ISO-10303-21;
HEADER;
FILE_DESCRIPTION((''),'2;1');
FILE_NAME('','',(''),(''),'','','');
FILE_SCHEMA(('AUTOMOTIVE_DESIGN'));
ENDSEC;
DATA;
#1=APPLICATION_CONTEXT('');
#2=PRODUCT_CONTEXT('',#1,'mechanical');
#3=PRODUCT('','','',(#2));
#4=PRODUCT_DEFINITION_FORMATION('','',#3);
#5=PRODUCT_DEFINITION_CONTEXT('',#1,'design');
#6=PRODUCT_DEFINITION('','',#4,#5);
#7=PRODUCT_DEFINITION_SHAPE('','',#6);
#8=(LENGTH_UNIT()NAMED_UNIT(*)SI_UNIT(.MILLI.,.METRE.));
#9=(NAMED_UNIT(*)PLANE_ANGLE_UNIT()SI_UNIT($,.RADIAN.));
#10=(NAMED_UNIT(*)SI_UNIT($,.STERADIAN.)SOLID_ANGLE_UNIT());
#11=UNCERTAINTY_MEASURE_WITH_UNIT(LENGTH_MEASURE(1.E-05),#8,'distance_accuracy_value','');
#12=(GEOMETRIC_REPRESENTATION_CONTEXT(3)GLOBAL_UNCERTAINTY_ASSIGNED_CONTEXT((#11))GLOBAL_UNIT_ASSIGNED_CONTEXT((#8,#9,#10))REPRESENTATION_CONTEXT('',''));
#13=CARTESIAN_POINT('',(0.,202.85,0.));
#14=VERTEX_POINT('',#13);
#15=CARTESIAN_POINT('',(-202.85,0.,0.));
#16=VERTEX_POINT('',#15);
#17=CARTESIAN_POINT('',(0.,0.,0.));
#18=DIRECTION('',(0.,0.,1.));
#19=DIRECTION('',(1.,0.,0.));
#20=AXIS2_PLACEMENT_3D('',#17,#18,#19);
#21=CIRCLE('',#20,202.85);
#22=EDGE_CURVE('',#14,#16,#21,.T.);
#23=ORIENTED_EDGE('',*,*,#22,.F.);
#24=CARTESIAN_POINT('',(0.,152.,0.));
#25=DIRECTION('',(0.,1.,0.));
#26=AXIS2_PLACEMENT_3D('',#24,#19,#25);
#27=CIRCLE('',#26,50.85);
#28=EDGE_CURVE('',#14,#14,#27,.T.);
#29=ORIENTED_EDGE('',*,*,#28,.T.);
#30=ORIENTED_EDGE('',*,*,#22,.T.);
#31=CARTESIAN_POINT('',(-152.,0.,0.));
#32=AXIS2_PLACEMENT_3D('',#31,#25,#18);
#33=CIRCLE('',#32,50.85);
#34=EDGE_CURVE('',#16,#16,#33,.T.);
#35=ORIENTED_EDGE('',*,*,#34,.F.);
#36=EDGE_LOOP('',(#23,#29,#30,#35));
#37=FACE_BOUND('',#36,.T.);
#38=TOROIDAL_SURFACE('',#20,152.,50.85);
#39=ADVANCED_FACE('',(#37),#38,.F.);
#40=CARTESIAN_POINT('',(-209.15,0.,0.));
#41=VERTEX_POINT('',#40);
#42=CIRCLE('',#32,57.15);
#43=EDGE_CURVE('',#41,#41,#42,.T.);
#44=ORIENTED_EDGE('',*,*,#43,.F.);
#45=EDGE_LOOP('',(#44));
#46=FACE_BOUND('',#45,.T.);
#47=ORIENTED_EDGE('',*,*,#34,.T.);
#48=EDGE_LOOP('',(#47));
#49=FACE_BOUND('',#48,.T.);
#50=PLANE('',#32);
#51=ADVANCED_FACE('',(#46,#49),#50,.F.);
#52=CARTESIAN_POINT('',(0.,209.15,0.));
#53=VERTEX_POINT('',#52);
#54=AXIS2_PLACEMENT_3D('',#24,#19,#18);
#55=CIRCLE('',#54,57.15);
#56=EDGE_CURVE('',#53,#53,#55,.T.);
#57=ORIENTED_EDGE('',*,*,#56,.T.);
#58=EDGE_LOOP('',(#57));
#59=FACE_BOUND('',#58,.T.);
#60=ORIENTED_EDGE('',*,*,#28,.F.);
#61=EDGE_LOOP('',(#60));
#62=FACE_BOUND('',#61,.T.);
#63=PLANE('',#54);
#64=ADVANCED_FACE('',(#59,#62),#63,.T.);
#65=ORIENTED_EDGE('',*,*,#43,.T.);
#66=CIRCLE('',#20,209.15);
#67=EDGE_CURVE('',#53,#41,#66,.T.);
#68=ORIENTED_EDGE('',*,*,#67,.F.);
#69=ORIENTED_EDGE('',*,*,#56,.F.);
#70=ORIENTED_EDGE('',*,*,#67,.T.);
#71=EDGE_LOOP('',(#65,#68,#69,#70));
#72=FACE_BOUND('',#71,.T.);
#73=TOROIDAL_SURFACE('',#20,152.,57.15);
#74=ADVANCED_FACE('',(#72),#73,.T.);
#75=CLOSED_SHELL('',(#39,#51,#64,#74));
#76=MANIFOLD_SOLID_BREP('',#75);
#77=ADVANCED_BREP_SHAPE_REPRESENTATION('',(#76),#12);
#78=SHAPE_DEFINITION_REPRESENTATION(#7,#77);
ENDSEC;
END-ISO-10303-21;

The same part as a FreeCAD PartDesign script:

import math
import FreeCAD as App
import Part
import Sketcher

doc = App.newDocument("Part")
params = doc.addObject("Spreadsheet::Sheet", "Params")
for row, (alias, value) in enumerate([
    ("sketch1_diameter", "114.3 mm"),
    ("sketch1_diameter2", "101.7 mm"),
    ("sketch2_radius", "152 mm"),
], start=1):
    params.set(f"A{row}", alias)
    params.set(f"B{row}", "=" + value)
    params.setAlias(f"B{row}", alias)

body = doc.addObject("PartDesign::Body", "Body")

# Sketch on XZ plane
sketch1 = doc.addObject("Sketcher::SketchObject", "Sketch")
body.addObject(sketch1)
sketch1.AttachmentSupport = (doc.XZ_Plane, [""])
sketch1.MapMode = "FlatFace"
sketch1.addGeometry(Part.Circle(App.Vector(-152, 0, 0), App.Vector(0, 0, 1), 57), False)
sketch1.addGeometry(Part.Circle(App.Vector(-152, 0, 0), App.Vector(0, 0, 1), 51), False)
sketch1.addConstraint(Sketcher.Constraint("Coincident", 1, 3, 0, 3))
sketch1.addConstraint(Sketcher.Constraint("PointOnObject", 0, 3, -1))
sketch1.addConstraint(Sketcher.Constraint("Diameter", 0, 114.3))
sketch1.addConstraint(Sketcher.Constraint("Diameter", 1, 101.7))
sketch1.addConstraint(Sketcher.Constraint("DistanceX", 0, 3, -1, 1, 152.0))
sketch1.setExpression("Constraints[2]", "Params.sketch1_diameter")
sketch1.setExpression("Constraints[3]", "Params.sketch1_diameter2")

# Sketch on XY plane
sketch2 = doc.addObject("Sketcher::SketchObject", "Sketch001")
body.addObject(sketch2)
sketch2.AttachmentSupport = (doc.XY_Plane, [""])
sketch2.MapMode = "FlatFace"
sketch2.addGeometry(Part.ArcOfCircle(Part.Circle(App.Vector(0, 0, 0), App.Vector(0, 0, 1), 152), math.radians(90), math.radians(180)), False)
sketch2.addConstraint(Sketcher.Constraint("Coincident", 0, 3, -1, 1))
sketch2.addConstraint(Sketcher.Constraint("PointOnObject", 0, 1, -2))
sketch2.addConstraint(Sketcher.Constraint("PointOnObject", 0, 2, -1))
sketch2.addConstraint(Sketcher.Constraint("Radius", 0, 152.0))
sketch2.setExpression("Constraints[3]", "Params.sketch2_radius")
doc.recompute()

additivepipe = doc.addObject("PartDesign::AdditivePipe", "AdditivePipe")
body.addObject(additivepipe)
additivepipe.Profile = sketch1
additivepipe.Spine = (sketch2, ["Edge1"])

doc.recompute()
